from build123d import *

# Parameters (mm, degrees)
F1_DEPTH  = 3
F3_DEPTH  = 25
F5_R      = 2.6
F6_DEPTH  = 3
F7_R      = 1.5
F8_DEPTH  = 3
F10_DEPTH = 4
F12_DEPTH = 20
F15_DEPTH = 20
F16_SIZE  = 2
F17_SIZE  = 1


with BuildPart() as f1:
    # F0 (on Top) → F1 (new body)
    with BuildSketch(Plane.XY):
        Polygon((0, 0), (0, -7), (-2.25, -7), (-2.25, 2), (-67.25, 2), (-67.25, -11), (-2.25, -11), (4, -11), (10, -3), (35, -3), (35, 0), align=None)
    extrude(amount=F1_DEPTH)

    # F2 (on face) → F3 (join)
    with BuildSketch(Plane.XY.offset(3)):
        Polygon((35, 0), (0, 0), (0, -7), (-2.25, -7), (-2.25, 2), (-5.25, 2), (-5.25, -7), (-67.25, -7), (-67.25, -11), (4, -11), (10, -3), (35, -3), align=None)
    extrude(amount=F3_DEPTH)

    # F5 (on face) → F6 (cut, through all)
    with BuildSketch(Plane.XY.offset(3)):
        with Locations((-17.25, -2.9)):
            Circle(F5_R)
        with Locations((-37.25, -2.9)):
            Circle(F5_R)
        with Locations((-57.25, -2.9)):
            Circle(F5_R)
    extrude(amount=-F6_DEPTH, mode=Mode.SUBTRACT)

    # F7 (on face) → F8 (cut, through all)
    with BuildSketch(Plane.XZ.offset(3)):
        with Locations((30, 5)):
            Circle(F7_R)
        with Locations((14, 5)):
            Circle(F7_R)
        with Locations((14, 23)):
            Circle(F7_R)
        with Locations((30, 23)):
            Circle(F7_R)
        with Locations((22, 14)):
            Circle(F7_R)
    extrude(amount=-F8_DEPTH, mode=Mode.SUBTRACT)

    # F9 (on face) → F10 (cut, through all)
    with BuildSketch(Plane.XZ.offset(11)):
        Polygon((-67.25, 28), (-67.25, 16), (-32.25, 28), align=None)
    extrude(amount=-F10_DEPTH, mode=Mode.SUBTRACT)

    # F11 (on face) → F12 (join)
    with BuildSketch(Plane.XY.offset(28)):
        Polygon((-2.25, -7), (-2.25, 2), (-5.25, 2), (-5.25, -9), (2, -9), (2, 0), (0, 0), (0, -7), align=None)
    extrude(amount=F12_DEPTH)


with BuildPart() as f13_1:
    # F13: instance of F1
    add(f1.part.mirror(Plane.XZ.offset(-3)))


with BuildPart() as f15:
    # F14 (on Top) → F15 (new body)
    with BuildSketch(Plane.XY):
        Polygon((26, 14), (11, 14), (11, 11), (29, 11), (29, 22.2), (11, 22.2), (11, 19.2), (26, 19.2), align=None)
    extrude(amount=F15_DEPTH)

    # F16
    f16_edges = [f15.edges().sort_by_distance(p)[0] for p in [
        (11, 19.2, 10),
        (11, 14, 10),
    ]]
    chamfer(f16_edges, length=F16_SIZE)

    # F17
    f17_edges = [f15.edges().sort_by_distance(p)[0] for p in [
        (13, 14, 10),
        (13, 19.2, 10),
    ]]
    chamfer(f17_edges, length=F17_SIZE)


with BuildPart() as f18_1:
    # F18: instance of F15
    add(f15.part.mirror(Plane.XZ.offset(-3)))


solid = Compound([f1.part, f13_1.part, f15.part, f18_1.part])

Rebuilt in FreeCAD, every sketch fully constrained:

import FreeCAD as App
import Part
import Sketcher
from FreeCAD import Vector
Q = App.Units.Quantity


def edges_at(feature, points):
    """Names of the edges that pass closest to the given points."""
    edges = feature.Shape.Edges
    near = lambda p: min(range(len(edges)), key=lambda i: edges[i].distToShape(Part.Vertex(*p))[0])
    return sorted({f"Edge{near(p) + 1}" for p in points})

doc = App.newDocument("Part")
body = doc.addObject("PartDesign::Body", "Body")

sketch1 = doc.addObject("Sketcher::SketchObject", "Sketch")
body.addObject(sketch1)
sketch1.AttachmentSupport = (doc.XY_Plane, [""])
sketch1.MapMode = "FlatFace"
sketch1.addGeometry([
    Part.LineSegment(Vector(0, 0, 0), Vector(0, -7, 0)),
    Part.LineSegment(Vector(0, -7, 0), Vector(-2.25, -7, 0)),
    Part.LineSegment(Vector(-2.25, -7, 0), Vector(-2.25, 2, 0)),
    Part.LineSegment(Vector(-2.25, 2, 0), Vector(-67.25, 2, 0)),
    Part.LineSegment(Vector(-67.25, 2, 0), Vector(-67.25, -11, 0)),
    Part.LineSegment(Vector(-67.25, -11, 0), Vector(4, -11, 0)),
    Part.LineSegment(Vector(4, -11, 0), Vector(10, -3, 0)),
    Part.LineSegment(Vector(10, -3, 0), Vector(35, -3, 0)),
    Part.LineSegment(Vector(35, -3, 0), Vector(35, 0, 0)),
    Part.LineSegment(Vector(35, 0, 0), Vector(0, 0, 0)),
], False)
sketch1.addConstraint([
    Sketcher.Constraint("Coincident", 0, 2, 1, 1),
    Sketcher.Constraint("Coincident", 1, 2, 2, 1),
    Sketcher.Constraint("Coincident", 2, 2, 3, 1),
    Sketcher.Constraint("Coincident", 3, 2, 4, 1),
    Sketcher.Constraint("Coincident", 4, 2, 5, 1),
    Sketcher.Constraint("Coincident", 5, 2, 6, 1),
    Sketcher.Constraint("Coincident", 6, 2, 7, 1),
    Sketcher.Constraint("Coincident", 7, 2, 8, 1),
    Sketcher.Constraint("Coincident", 8, 2, 9, 1),
    Sketcher.Constraint("Coincident", 9, 2, 0, 1),
    Sketcher.Constraint("Vertical", 0),
    Sketcher.Constraint("Horizontal", 1),
    Sketcher.Constraint("Vertical", 2),
    Sketcher.Constraint("Horizontal", 3),
    Sketcher.Constraint("Vertical", 4),
    Sketcher.Constraint("Horizontal", 5),
    Sketcher.Constraint("Horizontal", 7),
    Sketcher.Constraint("Vertical", 8),
    Sketcher.Constraint("Horizontal", 9),
    Sketcher.Constraint("Coincident", 9, 2, -1, 1),
    Sketcher.Constraint("DistanceX", 3, 2, 3, 1, Q("65 mm")),
    Sketcher.Constraint("DistanceX", 7, 1, 7, 2, Q("25 mm")),
    Sketcher.Constraint("DistanceX", 9, 2, 9, 1, Q("35 mm")),
    Sketcher.Constraint("DistanceY", 0, 2, 0, 1, Q("7 mm")),
    Sketcher.Constraint("DistanceY", 2, 1, 2, 2, Q("9 mm")),
    Sketcher.Constraint("DistanceY", 4, 2, 4, 1, Q("13 mm")),
    Sketcher.Constraint("DistanceY", 8, 1, 8, 2, Q("3 mm")),
    Sketcher.Constraint("Distance", 6, Q("10 mm")),
    Sketcher.Constraint("DistanceX", 1, 2, 1, 1, Q("2.25 mm")),
])
pad1 = doc.addObject("PartDesign::Pad", "Pad")
body.addObject(pad1)
pad1.Profile = sketch1
pad1.Length = 3

sketch2 = doc.addObject("Sketcher::SketchObject", "Sketch001")
body.addObject(sketch2)
sketch2.AttachmentSupport = (doc.XY_Plane, [""])
sketch2.MapMode = "FlatFace"
sketch2.AttachmentOffset = App.Placement(Vector(0, 0, 3), App.Rotation())
sketch2.addGeometry([
    Part.LineSegment(Vector(35, 0, 0), Vector(0, 0, 0)),
    Part.LineSegment(Vector(0, 0, 0), Vector(0, -7, 0)),
    Part.LineSegment(Vector(0, -7, 0), Vector(-2.25, -7, 0)),
    Part.LineSegment(Vector(-2.25, -7, 0), Vector(-2.25, 2, 0)),
    Part.LineSegment(Vector(-2.25, 2, 0), Vector(-5.25, 2, 0)),
    Part.LineSegment(Vector(-5.25, 2, 0), Vector(-5.25, -7, 0)),
    Part.LineSegment(Vector(-5.25, -7, 0), Vector(-67.25, -7, 0)),
    Part.LineSegment(Vector(-67.25, -7, 0), Vector(-67.25, -11, 0)),
    Part.LineSegment(Vector(-67.25, -11, 0), Vector(4, -11, 0)),
    Part.LineSegment(Vector(4, -11, 0), Vector(10, -3, 0)),
    Part.LineSegment(Vector(10, -3, 0), Vector(35, -3, 0)),
    Part.LineSegment(Vector(35, -3, 0), Vector(35, 0, 0)),
], False)
sketch2.addConstraint([
    Sketcher.Constraint("Coincident", 0, 2, 1, 1),
    Sketcher.Constraint("Coincident", 1, 2, 2, 1),
    Sketcher.Constraint("Coincident", 2, 2, 3, 1),
    Sketcher.Constraint("Coincident", 3, 2, 4, 1),
    Sketcher.Constraint("Coincident", 4, 2, 5, 1),
    Sketcher.Constraint("Coincident", 5, 2, 6, 1),
    Sketcher.Constraint("Coincident", 6, 2, 7, 1),
    Sketcher.Constraint("Coincident", 7, 2, 8, 1),
    Sketcher.Constraint("Coincident", 8, 2, 9, 1),
    Sketcher.Constraint("Coincident", 9, 2, 10, 1),
    Sketcher.Constraint("Coincident", 10, 2, 11, 1),
    Sketcher.Constraint("Coincident", 11, 2, 0, 1),
    Sketcher.Constraint("Horizontal", 0),
    Sketcher.Constraint("Vertical", 1),
    Sketcher.Constraint("Horizontal", 2),
    Sketcher.Constraint("Vertical", 3),
    Sketcher.Constraint("Horizontal", 4),
    Sketcher.Constraint("Vertical", 5),
    Sketcher.Constraint("Horizontal", 6),
    Sketcher.Constraint("Vertical", 7),
    Sketcher.Constraint("Horizontal", 8),
    Sketcher.Constraint("Horizontal", 10),
    Sketcher.Constraint("Vertical", 11),
    Sketcher.Constraint("Coincident", 0, 2, -1, 1),
    Sketcher.Constraint("Horizontal", 2, 2, 5, 2),
    Sketcher.Constraint("Equal", 4, 11),
    Sketcher.Constraint("DistanceX", 0, 2, 0, 1, Q("35 mm")),
    Sketcher.Constraint("DistanceX", 4, 2, 4, 1, Q("3 mm")),
    Sketcher.Constraint("DistanceX", 6, 2, 6, 1, Q("62 mm")),
    Sketcher.Constraint("DistanceX", 10, 1, 10, 2, Q("25 mm")),
    Sketcher.Constraint("DistanceY", 1, 2, 1, 1, Q("7 mm")),
    Sketcher.Constraint("DistanceY", 3, 1, 3, 2, Q("9 mm")),
    Sketcher.Constraint("DistanceY", 7, 2, 7, 1, Q("4 mm")),
    Sketcher.Constraint("Distance", 9, Q("10 mm")),
    Sketcher.Constraint("DistanceX", 2, 2, 2, 1, Q("2.25 mm")),
])
pad2 = doc.addObject("PartDesign::Pad", "Pad001")
body.addObject(pad2)
pad2.Profile = sketch2
pad2.Length = 25

sketch3 = doc.addObject("Sketcher::SketchObject", "Sketch002")
body.addObject(sketch3)
sketch3.AttachmentSupport = (doc.XY_Plane, [""])
sketch3.MapMode = "FlatFace"
sketch3.AttachmentOffset = App.Placement(Vector(0, 0, 3), App.Rotation())
sketch3.addGeometry([
    Part.Circle(Vector(-17.25, -2.9, 0), Vector(0, 0, 1), 2.6),
    Part.Circle(Vector(-37.25, -2.9, 0), Vector(0, 0, 1), 2.6),
    Part.Circle(Vector(-57.25, -2.9, 0), Vector(0, 0, 1), 2.6),
], False)
sketch3.addConstraint([
    Sketcher.Constraint("Equal", 0, 1),
    Sketcher.Constraint("Equal", 1, 2),
    Sketcher.Constraint("Horizontal", 0, 3, 1, 3),
    Sketcher.Constraint("Horizontal", 1, 3, 2, 3),
    Sketcher.Constraint("Diameter", 0, Q("5.2 mm")),
    Sketcher.Constraint("DistanceX", 1, 3, 0, 3, Q("20 mm")),
    Sketcher.Constraint("DistanceX", 2, 3, 1, 3, Q("20 mm")),
    Sketcher.Constraint("DistanceY", 0, 3, -1, 1, Q("2.9 mm")),
    Sketcher.Constraint("DistanceX", 0, 3, -1, 1, Q("17.25 mm")),
])
pocket1 = doc.addObject("PartDesign::Pocket", "Pocket")
body.addObject(pocket1)
pocket1.Profile = sketch3
pocket1.Type = "ThroughAll"

sketch4 = doc.addObject("Sketcher::SketchObject", "Sketch003")
body.addObject(sketch4)
sketch4.AttachmentSupport = (doc.XZ_Plane, [""])
sketch4.MapMode = "FlatFace"
sketch4.AttachmentOffset = App.Placement(Vector(0, 0, 3), App.Rotation())
sketch4.addGeometry([
    Part.Circle(Vector(30, 5, 0), Vector(0, 0, 1), 1.5),
    Part.Circle(Vector(14, 5, 0), Vector(0, 0, 1), 1.5),
    Part.Circle(Vector(14, 23, 0), Vector(0, 0, 1), 1.5),
    Part.Circle(Vector(30, 23, 0), Vector(0, 0, 1), 1.5),
    Part.Circle(Vector(22, 14, 0), Vector(0, 0, 1), 1.5),
], False)
sketch4.addConstraint([
    Sketcher.Constraint("Equal", 0, 1),
    Sketcher.Constraint("Equal", 1, 2),
    Sketcher.Constraint("Equal", 2, 3),
    Sketcher.Constraint("Equal", 3, 4),
    Sketcher.Constraint("Horizontal", 0, 3, 1, 3),
    Sketcher.Constraint("Horizontal", 2, 3, 3, 3),
    Sketcher.Constraint("Vertical", 1, 3, 2, 3),
    Sketcher.Constraint("Vertical", 0, 3, 3, 3),
    Sketcher.Constraint("Diameter", 0, Q("3 mm")),
    Sketcher.Constraint("DistanceX", -1, 1, 0, 3, Q("30 mm")),
    Sketcher.Constraint("DistanceY", -1, 1, 0, 3, Q("5 mm")),
    Sketcher.Constraint("DistanceX", -1, 1, 1, 3, Q("14 mm")),
    Sketcher.Constraint("DistanceY", -1, 1, 2, 3, Q("23 mm")),
    Sketcher.Constraint("DistanceX", -1, 1, 4, 3, Q("22 mm")),
    Sketcher.Constraint("DistanceY", -1, 1, 4, 3, Q("14 mm")),
])
pocket2 = doc.addObject("PartDesign::Pocket", "Pocket001")
body.addObject(pocket2)
pocket2.Profile = sketch4
pocket2.Type = "ThroughAll"

sketch5 = doc.addObject("Sketcher::SketchObject", "Sketch004")
body.addObject(sketch5)
sketch5.AttachmentSupport = (doc.XZ_Plane, [""])
sketch5.MapMode = "FlatFace"
sketch5.AttachmentOffset = App.Placement(Vector(0, 0, 11), App.Rotation())
sketch5.addGeometry([
    Part.LineSegment(Vector(-67.25, 28, 0), Vector(-67.25, 16, 0)),
    Part.LineSegment(Vector(-67.25, 16, 0), Vector(-32.25, 28, 0)),
    Part.LineSegment(Vector(-32.25, 28, 0), Vector(-67.25, 28, 0)),
], False)
sketch5.addConstraint([
    Sketcher.Constraint("Coincident", 0, 2, 1, 1),
    Sketcher.Constraint("Coincident", 1, 2, 2, 1),
    Sketcher.Constraint("Coincident", 2, 2, 0, 1),
    Sketcher.Constraint("Vertical", 0),
    Sketcher.Constraint("Horizontal", 2),
    Sketcher.Constraint("DistanceX", 2, 2, 2, 1, Q("35 mm")),
    Sketcher.Constraint("DistanceY", 0, 2, 0, 1, Q("12 mm")),
    Sketcher.Constraint("DistanceY", -1, 1, 0, 2, Q("16 mm")),
    Sketcher.Constraint("DistanceX", 0, 2, -1, 1, Q("67.25 mm")),
])
pocket3 = doc.addObject("PartDesign::Pocket", "Pocket002")
body.addObject(pocket3)
pocket3.Profile = sketch5
pocket3.Type = "ThroughAll"

sketch6 = doc.addObject("Sketcher::SketchObject", "Sketch005")
body.addObject(sketch6)
sketch6.AttachmentSupport = (doc.XY_Plane, [""])
sketch6.MapMode = "FlatFace"
sketch6.AttachmentOffset = App.Placement(Vector(0, 0, 28), App.Rotation())
sketch6.addGeometry([
    Part.LineSegment(Vector(-2.25, -7, 0), Vector(-2.25, 2, 0)),
    Part.LineSegment(Vector(-2.25, 2, 0), Vector(-5.25, 2, 0)),
    Part.LineSegment(Vector(-5.25, 2, 0), Vector(-5.25, -9, 0)),
    Part.LineSegment(Vector(-5.25, -9, 0), Vector(2, -9, 0)),
    Part.LineSegment(Vector(2, -9, 0), Vector(2, 0, 0)),
    Part.LineSegment(Vector(2, 0, 0), Vector(0, 0, 0)),
    Part.LineSegment(Vector(0, 0, 0), Vector(0, -7, 0)),
    Part.LineSegment(Vector(0, -7, 0), Vector(-2.25, -7, 0)),
], False)
sketch6.addConstraint([
    Sketcher.Constraint("Coincident", 0, 2, 1, 1),
    Sketcher.Constraint("Coincident", 1, 2, 2, 1),
    Sketcher.Constraint("Coincident", 2, 2, 3, 1),
    Sketcher.Constraint("Coincident", 3, 2, 4, 1),
    Sketcher.Constraint("Coincident", 4, 2, 5, 1),
    Sketcher.Constraint("Coincident", 5, 2, 6, 1),
    Sketcher.Constraint("Coincident", 6, 2, 7, 1),
    Sketcher.Constraint("Coincident", 7, 2, 0, 1),
    Sketcher.Constraint("Vertical", 0),
    Sketcher.Constraint("Horizontal", 1),
    Sketcher.Constraint("Vertical", 2),
    Sketcher.Constraint("Horizontal", 3),
    Sketcher.Constraint("Vertical", 4),
    Sketcher.Constraint("Horizontal", 5),
    Sketcher.Constraint("Vertical", 6),
    Sketcher.Constraint("Horizontal", 7),
    Sketcher.Constraint("Coincident", 5, 2, -1, 1),
    Sketcher.Constraint("Equal", 0, 4),
    Sketcher.Constraint("DistanceX", 1, 2, 1, 1, Q("3 mm")),
    Sketcher.Constraint("DistanceX", 5, 2, 5, 1, Q("2 mm")),
    Sketcher.Constraint("DistanceY", 0, 1, 0, 2, Q("9 mm")),
    Sketcher.Constraint("DistanceY", 2, 2, 2, 1, Q("11 mm")),
    Sketcher.Constraint("DistanceX", 3, 1, 3, 2, Q("7.25 mm")),
])
pad3 = doc.addObject("PartDesign::Pad", "Pad002")
body.addObject(pad3)
pad3.Profile = sketch6
pad3.Length = 20
body2 = doc.addObject("PartDesign::Body", "Body001")
doc.recompute()

mirroring = doc.addObject("Part::Mirroring", "Mirroring")
mirroring.Source = body
mirroring.Base = Vector(0, 3, 0)
mirroring.Normal = Vector(0, -1, 0)
body2.BaseFeature = mirroring
doc.recompute()
body3 = doc.addObject("PartDesign::Body", "Body002")

sketch7 = doc.addObject("Sketcher::SketchObject", "Sketch006")
body3.addObject(sketch7)
sketch7.AttachmentSupport = (doc.getObject("XY_Plane002"), [""])
sketch7.MapMode = "FlatFace"
sketch7.addGeometry([
    Part.LineSegment(Vector(26, 14, 0), Vector(11, 14, 0)),
    Part.LineSegment(Vector(11, 14, 0), Vector(11, 11, 0)),
    Part.LineSegment(Vector(11, 11, 0), Vector(29, 11, 0)),
    Part.LineSegment(Vector(29, 11, 0), Vector(29, 22.2, 0)),
    Part.LineSegment(Vector(29, 22.2, 0), Vector(11, 22.2, 0)),
    Part.LineSegment(Vector(11, 22.2, 0), Vector(11, 19.2, 0)),
    Part.LineSegment(Vector(11, 19.2, 0), Vector(26, 19.2, 0)),
    Part.LineSegment(Vector(26, 19.2, 0), Vector(26, 14, 0)),
], False)
sketch7.addConstraint([
    Sketcher.Constraint("Coincident", 0, 2, 1, 1),
    Sketcher.Constraint("Coincident", 1, 2, 2, 1),
    Sketcher.Constraint("Coincident", 2, 2, 3, 1),
    Sketcher.Constraint("Coincident", 3, 2, 4, 1),
    Sketcher.Constraint("Coincident", 4, 2, 5, 1),
    Sketcher.Constraint("Coincident", 5, 2, 6, 1),
    Sketcher.Constraint("Coincident", 6, 2, 7, 1),
    Sketcher.Constraint("Coincident", 7, 2, 0, 1),
    Sketcher.Constraint("Horizontal", 0),
    Sketcher.Constraint("Vertical", 1),
    Sketcher.Constraint("Horizontal", 2),
    Sketcher.Constraint("Vertical", 3),
    Sketcher.Constraint("Horizontal", 4),
    Sketcher.Constraint("Vertical", 5),
    Sketcher.Constraint("Horizontal", 6),
    Sketcher.Constraint("Vertical", 7),
    Sketcher.Constraint("Vertical", 1, 2, 4, 2),
    Sketcher.Constraint("Equal", 1, 5),
    Sketcher.Constraint("DistanceX", 0, 2, 0, 1, Q("15 mm")),
    Sketcher.Constraint("DistanceX", 2, 1, 2, 2, Q("18 mm")),
    Sketcher.Constraint("DistanceY", 1, 2, 1, 1, Q("3 mm")),
    Sketcher.Constraint("DistanceY", 3, 1, 3, 2, Q("11.2 mm")),
    Sketcher.Constraint("DistanceX", -1, 1, 0, 2, Q("11 mm")),
    Sketcher.Constraint("DistanceY", -1, 1, 0, 2, Q("14 mm")),
])
pad4 = doc.addObject("PartDesign::Pad", "Pad003")
body3.addObject(pad4)
pad4.Profile = sketch7
pad4.Length = 20
doc.recompute()

chamfer = doc.addObject("PartDesign::Chamfer", "Chamfer")
body3.addObject(chamfer)
chamfer.Base = (pad4, edges_at(pad4, [(11, 19.2, 10), (11, 14, 10)]))
chamfer.Size = 2
doc.recompute()

chamfer2 = doc.addObject("PartDesign::Chamfer", "Chamfer001")
body3.addObject(chamfer2)
chamfer2.Base = (chamfer, edges_at(chamfer, [(13, 14, 10), (13, 19.2, 10)]))
chamfer2.Size = 1
body4 = doc.addObject("PartDesign::Body", "Body003")
doc.recompute()

mirroring2 = doc.addObject("Part::Mirroring", "Mirroring001")
mirroring2.Source = body3
mirroring2.Base = Vector(0, 3, 0)
mirroring2.Normal = Vector(0, -1, 0)
body4.BaseFeature = mirroring2
doc.recompute()
mirroring.Visibility = False
mirroring2.Visibility = False

doc.recompute()
